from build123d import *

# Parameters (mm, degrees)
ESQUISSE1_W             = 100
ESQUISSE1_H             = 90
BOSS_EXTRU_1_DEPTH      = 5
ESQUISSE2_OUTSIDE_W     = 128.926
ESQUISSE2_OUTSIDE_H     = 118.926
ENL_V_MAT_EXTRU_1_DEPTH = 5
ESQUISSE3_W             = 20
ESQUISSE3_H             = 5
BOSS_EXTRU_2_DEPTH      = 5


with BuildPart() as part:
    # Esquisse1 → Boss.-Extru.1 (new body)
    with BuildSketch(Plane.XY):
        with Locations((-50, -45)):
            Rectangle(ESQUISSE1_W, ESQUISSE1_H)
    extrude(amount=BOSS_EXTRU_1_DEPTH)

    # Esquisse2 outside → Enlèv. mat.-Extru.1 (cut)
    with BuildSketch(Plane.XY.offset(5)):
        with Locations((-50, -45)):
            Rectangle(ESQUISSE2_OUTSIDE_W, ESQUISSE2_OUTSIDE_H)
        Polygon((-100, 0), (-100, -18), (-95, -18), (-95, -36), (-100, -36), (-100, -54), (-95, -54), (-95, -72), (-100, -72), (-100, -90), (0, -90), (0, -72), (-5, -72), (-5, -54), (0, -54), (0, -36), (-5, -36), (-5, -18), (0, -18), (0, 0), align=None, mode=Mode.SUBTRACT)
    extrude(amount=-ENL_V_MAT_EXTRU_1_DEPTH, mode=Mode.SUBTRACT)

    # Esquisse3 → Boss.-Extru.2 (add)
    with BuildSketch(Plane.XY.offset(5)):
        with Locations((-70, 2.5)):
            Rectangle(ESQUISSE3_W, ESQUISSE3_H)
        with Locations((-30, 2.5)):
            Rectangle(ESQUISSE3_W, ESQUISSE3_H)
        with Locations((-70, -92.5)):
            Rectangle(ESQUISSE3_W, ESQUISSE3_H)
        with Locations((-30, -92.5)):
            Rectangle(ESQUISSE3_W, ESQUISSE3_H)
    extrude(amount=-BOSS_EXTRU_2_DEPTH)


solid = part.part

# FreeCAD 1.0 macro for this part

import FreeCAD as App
import Part
import Sketcher
from FreeCAD import Vector

doc = App.newDocument("Part")
body = doc.addObject("PartDesign::Body", "Body")

sketch1 = body.newObject("Sketcher::SketchObject", "Sketch")
sketch1.AttachmentSupport = (doc.getObject("XY_Plane"), [""])
sketch1.MapMode = "FlatFace"
sketch1.addGeometry([
    Part.LineSegment(Vector(-100, 0, 0), Vector(-100, -90, 0)),
    Part.LineSegment(Vector(-100, -90, 0), Vector(0, -90, 0)),
    Part.LineSegment(Vector(0, -90, 0), Vector(0, 0, 0)),
    Part.LineSegment(Vector(0, 0, 0), Vector(-100, 0, 0)),
], False)
sketch1.addConstraint([
    Sketcher.Constraint("Coincident", 0, 2, 1, 1),
    Sketcher.Constraint("Coincident", 1, 2, 2, 1),
    Sketcher.Constraint("Coincident", 2, 2, 3, 1),
    Sketcher.Constraint("Coincident", 3, 2, 0, 1),
    Sketcher.Constraint("Vertical", 0),
    Sketcher.Constraint("Horizontal", 1),
    Sketcher.Constraint("Vertical", 2),
    Sketcher.Constraint("Horizontal", 3),
    Sketcher.Constraint("Coincident", 2, 2, -1, 1),
    Sketcher.Constraint("DistanceX", 1, 1, 1, 2, 100.0),
    Sketcher.Constraint("DistanceY", 0, 2, 0, 1, 90.0),
])
pad1 = body.newObject("PartDesign::Pad", "Pad")
pad1.Profile = sketch1
pad1.Length = 5

sketch2 = body.newObject("Sketcher::SketchObject", "Sketch001")
sketch2.AttachmentSupport = (doc.getObject("XY_Plane"), [""])
sketch2.MapMode = "FlatFace"
sketch2.AttachmentOffset = App.Placement(Vector(0, 0, 5), App.Rotation())
sketch2.addGeometry([
    Part.LineSegment(Vector(-114.463, 14.463, 0), Vector(-114.463, -104.463, 0)),
    Part.LineSegment(Vector(-114.463, -104.463, 0), Vector(14.463, -104.463, 0)),
    Part.LineSegment(Vector(14.463, -104.463, 0), Vector(14.463, 14.463, 0)),
    Part.LineSegment(Vector(14.463, 14.463, 0), Vector(-114.463, 14.463, 0)),
    Part.LineSegment(Vector(-100, -18, 0), Vector(-100, 0, 0)),
    Part.LineSegment(Vector(-100, 0, 0), Vector(0, 0, 0)),
    Part.LineSegment(Vector(0, 0, 0), Vector(0, -18, 0)),
    Part.LineSegment(Vector(0, -18, 0), Vector(-5, -18, 0)),
    Part.LineSegment(Vector(-5, -18, 0), Vector(-5, -36, 0)),
    Part.LineSegment(Vector(-5, -36, 0), Vector(0, -36, 0)),
    Part.LineSegment(Vector(0, -36, 0), Vector(0, -54, 0)),
    Part.LineSegment(Vector(0, -54, 0), Vector(-5, -54, 0)),
    Part.LineSegment(Vector(-5, -54, 0), Vector(-5, -72, 0)),
    Part.LineSegment(Vector(-5, -72, 0), Vector(0, -72, 0)),
    Part.LineSegment(Vector(0, -72, 0), Vector(0, -90, 0)),
    Part.LineSegment(Vector(0, -90, 0), Vector(-100, -90, 0)),
    Part.LineSegment(Vector(-100, -90, 0), Vector(-100, -72, 0)),
    Part.LineSegment(Vector(-100, -72, 0), Vector(-95, -72, 0)),
    Part.LineSegment(Vector(-95, -72, 0), Vector(-95, -54, 0)),
    Part.LineSegment(Vector(-95, -54, 0), Vector(-100, -54, 0)),
    Part.LineSegment(Vector(-100, -54, 0), Vector(-100, -36, 0)),
    Part.LineSegment(Vector(-100, -36, 0), Vector(-95, -36, 0)),
    Part.LineSegment(Vector(-95, -36, 0), Vector(-95, -18, 0)),
    Part.LineSegment(Vector(-95, -18, 0), Vector(-100, -18, 0)),
], False)
sketch2.addConstraint([
    Sketcher.Constraint("Coincident", 0, 2, 1, 1),
    Sketcher.Constraint("Coincident", 1, 2, 2, 1),
    Sketcher.Constraint("Coincident", 2, 2, 3, 1),
    Sketcher.Constraint("Coincident", 3, 2, 0, 1),
    Sketcher.Constraint("Coincident", 4, 2, 5, 1),
    Sketcher.Constraint("Coincident", 5, 2, 6, 1),
    Sketcher.Constraint("Coincident", 6, 2, 7, 1),
    Sketcher.Constraint("Coincident", 7, 2, 8, 1),
    Sketcher.Constraint("Coincident", 8, 2, 9, 1),
    Sketcher.Constraint("Coincident", 9, 2, 10, 1),
    Sketcher.Constraint("Coincident", 10, 2, 11, 1),
    Sketcher.Constraint("Coincident", 11, 2, 12, 1),
    Sketcher.Constraint("Coincident", 12, 2, 13, 1),
    Sketcher.Constraint("Coincident", 13, 2, 14, 1),
    Sketcher.Constraint("Coincident", 14, 2, 15, 1),
    Sketcher.Constraint("Coincident", 15, 2, 16, 1),
    Sketcher.Constraint("Coincident", 16, 2, 17, 1),
    Sketcher.Constraint("Coincident", 17, 2, 18, 1),
    Sketcher.Constraint("Coincident", 18, 2, 19, 1),
    Sketcher.Constraint("Coincident", 19, 2, 20, 1),
    Sketcher.Constraint("Coincident", 20, 2, 21, 1),
    Sketcher.Constraint("Coincident", 21, 2, 22, 1),
    Sketcher.Constraint("Coincident", 22, 2, 23, 1),
    Sketcher.Constraint("Coincident", 23, 2, 4, 1),
    Sketcher.Constraint("Vertical", 0),
    Sketcher.Constraint("Horizontal", 1),
    Sketcher.Constraint("Vertical", 2),
    Sketcher.Constraint("Horizontal", 3),
    Sketcher.Constraint("Vertical", 4),
    Sketcher.Constraint("Horizontal", 5),
    Sketcher.Constraint("Vertical", 6),
    Sketcher.Constraint("Horizontal", 7),
    Sketcher.Constraint("Vertical", 8),
    Sketcher.Constraint("Horizontal", 9),
    Sketcher.Constraint("Vertical", 10),
    Sketcher.Constraint("Horizontal", 11),
    Sketcher.Constraint("Vertical", 12),
    Sketcher.Constraint("Horizontal", 13),
    Sketcher.Constraint("Vertical", 14),
    Sketcher.Constraint("Horizontal", 15),
    Sketcher.Constraint("Vertical", 16),
    Sketcher.Constraint("Horizontal", 17),
    Sketcher.Constraint("Vertical", 18),
    Sketcher.Constraint("Horizontal", 19),
    Sketcher.Constraint("Vertical", 20),
    Sketcher.Constraint("Horizontal", 21),
    Sketcher.Constraint("Vertical", 22),
    Sketcher.Constraint("Horizontal", 23),
    Sketcher.Constraint("Coincident", 5, 2, -1, 1),
    Sketcher.Constraint("PointOnObject", 9, 2, -2),
    Sketcher.Constraint("PointOnObject", 13, 2, -2),
    Sketcher.Constraint("Horizontal", 13, 2, 16, 2),
    Sketcher.Constraint("Horizontal", 11, 2, 18, 2),
    Sketcher.Constraint("Horizontal", 9, 2, 20, 2),
    Sketcher.Constraint("Horizontal", 7, 2, 22, 2),
    Sketcher.Constraint("Vertical", 8, 2, 11, 2),
    Sketcher.Constraint("Vertical", 4, 2, 15, 2),
    Sketcher.Constraint("Vertical", 16, 2, 19, 2),
    Sketcher.Constraint("Vertical", 18, 2, 21, 2),
    Sketcher.Constraint("Equal", 13, 17),
    Sketcher.Constraint("Equal", 6, 8),
    Sketcher.Constraint("Equal", 8, 10),
    Sketcher.Constraint("Equal", 10, 12),
    Sketcher.Constraint("Equal", 12, 14),
    Sketcher.Constraint("DistanceX", 5, 1, 5, 2, 100.0),
    Sketcher.Constraint("DistanceX", 7, 2, 7, 1, 5.0),
    Sketcher.Constraint("DistanceY", 4, 1, 4, 2, 18.0),
    Sketcher.Constraint("DistanceX", 1, 1, 1, 2, 128.926),
    Sketcher.Constraint("DistanceY", 0, 2, 0, 1, 118.926),
    Sketcher.Constraint("DistanceX", 0, 2, -1, 1, 114.463),
    Sketcher.Constraint("DistanceY", 0, 2, -1, 1, 104.463),
])
pocket1 = body.newObject("PartDesign::Pocket", "Pocket")
pocket1.Profile = sketch2
pocket1.Length = 5

sketch3 = body.newObject("Sketcher::SketchObject", "Sketch002")
sketch3.AttachmentSupport = (doc.getObject("XY_Plane"), [""])
sketch3.MapMode = "FlatFace"
sketch3.AttachmentOffset = App.Placement(Vector(0, 0, 5), App.Rotation())
sketch3.addGeometry([
    Part.LineSegment(Vector(-80, 5, 0), Vector(-80, 0, 0)),
    Part.LineSegment(Vector(-80, 0, 0), Vector(-60, 0, 0)),
    Part.LineSegment(Vector(-60, 0, 0), Vector(-60, 5, 0)),
    Part.LineSegment(Vector(-60, 5, 0), Vector(-80, 5, 0)),
    Part.LineSegment(Vector(-40, 5, 0), Vector(-40, 0, 0)),
    Part.LineSegment(Vector(-40, 0, 0), Vector(-20, 0, 0)),
    Part.LineSegment(Vector(-20, 0, 0), Vector(-20, 5, 0)),
    Part.LineSegment(Vector(-20, 5, 0), Vector(-40, 5, 0)),
    Part.LineSegment(Vector(-80, -90, 0), Vector(-80, -95, 0)),
    Part.LineSegment(Vector(-80, -95, 0), Vector(-60, -95, 0)),
    Part.LineSegment(Vector(-60, -95, 0), Vector(-60, -90, 0)),
    Part.LineSegment(Vector(-60, -90, 0), Vector(-80, -90, 0)),
    Part.LineSegment(Vector(-40, -90, 0), Vector(-40, -95, 0)),
    Part.LineSegment(Vector(-40, -95, 0), Vector(-20, -95, 0)),
    Part.LineSegment(Vector(-20, -95, 0), Vector(-20, -90, 0)),
    Part.LineSegment(Vector(-20, -90, 0), Vector(-40, -90, 0)),
], False)
sketch3.addConstraint([
    Sketcher.Constraint("Coincident", 0, 2, 1, 1),
    Sketcher.Constraint("Coincident", 1, 2, 2, 1),
    Sketcher.Constraint("Coincident", 2, 2, 3, 1),
    Sketcher.Constraint("Coincident", 3, 2, 0, 1),
    Sketcher.Constraint("Coincident", 4, 2, 5, 1),
    Sketcher.Constraint("Coincident", 5, 2, 6, 1),
    Sketcher.Constraint("Coincident", 6, 2, 7, 1),
    Sketcher.Constraint("Coincident", 7, 2, 4, 1),
    Sketcher.Constraint("Coincident", 8, 2, 9, 1),
    Sketcher.Constraint("Coincident", 9, 2, 10, 1),
    Sketcher.Constraint("Coincident", 10, 2, 11, 1),
    Sketcher.Constraint("Coincident", 11, 2, 8, 1),
    Sketcher.Constraint("Coincident", 12, 2, 13, 1),
    Sketcher.Constraint("Coincident", 13, 2, 14, 1),
    Sketcher.Constraint("Coincident", 14, 2, 15, 1),
    Sketcher.Constraint("Coincident", 15, 2, 12, 1),
    Sketcher.Constraint("Vertical", 0),
    Sketcher.Constraint("Horizontal", 1),
    Sketcher.Constraint("Vertical", 2),
    Sketcher.Constraint("Horizontal", 3),
    Sketcher.Constraint("Vertical", 4),
    Sketcher.Constraint("Horizontal", 5),
    Sketcher.Constraint("Vertical", 6),
    Sketcher.Constraint("Horizontal", 7),
    Sketcher.Constraint("Vertical", 8),
    Sketcher.Constraint("Horizontal", 9),
    Sketcher.Constraint("Vertical", 10),
    Sketcher.Constraint("Horizontal", 11),
    Sketcher.Constraint("Vertical", 12),
    Sketcher.Constraint("Horizontal", 13),
    Sketcher.Constraint("Vertical", 14),
    Sketcher.Constraint("Horizontal", 15),
    Sketcher.Constraint("PointOnObject", 0, 2, -1),
    Sketcher.Constraint("PointOnObject", 4, 2, -1),
    Sketcher.Constraint("Horizontal", 3, 2, 6, 2),
    Sketcher.Constraint("Horizontal", 9, 2, 12, 2),
    Sketcher.Constraint("Horizontal", 11, 2, 14, 2),
    Sketcher.Constraint("Vertical", 3, 2, 8, 2),
    Sketcher.Constraint("Vertical", 2, 2, 9, 2),
    Sketcher.Constraint("Vertical", 7, 2, 12, 2),
    Sketcher.Constraint("Vertical", 6, 2, 13, 2),
    Sketcher.Constraint("Equal", 3, 5),
    Sketcher.Constraint("Equal", 6, 8),
    Sketcher.Constraint("DistanceX", 1, 1, 1, 2, 20.0),
    Sketcher.Constraint("DistanceY", 0, 2, 0, 1, 5.0),
    Sketcher.Constraint("DistanceX", 0, 2, -1, 1, 80.0),
    Sketcher.Constraint("DistanceX", 4, 2, -1, 1, 40.0),
    Sketcher.Constraint("DistanceY", 8, 2, -1, 1, 95.0),
])
pad2 = body.newObject("PartDesign::Pad", "Pad001")
pad2.Profile = sketch3
pad2.Length = 5
pad2.Reversed = True

doc.recompute()
